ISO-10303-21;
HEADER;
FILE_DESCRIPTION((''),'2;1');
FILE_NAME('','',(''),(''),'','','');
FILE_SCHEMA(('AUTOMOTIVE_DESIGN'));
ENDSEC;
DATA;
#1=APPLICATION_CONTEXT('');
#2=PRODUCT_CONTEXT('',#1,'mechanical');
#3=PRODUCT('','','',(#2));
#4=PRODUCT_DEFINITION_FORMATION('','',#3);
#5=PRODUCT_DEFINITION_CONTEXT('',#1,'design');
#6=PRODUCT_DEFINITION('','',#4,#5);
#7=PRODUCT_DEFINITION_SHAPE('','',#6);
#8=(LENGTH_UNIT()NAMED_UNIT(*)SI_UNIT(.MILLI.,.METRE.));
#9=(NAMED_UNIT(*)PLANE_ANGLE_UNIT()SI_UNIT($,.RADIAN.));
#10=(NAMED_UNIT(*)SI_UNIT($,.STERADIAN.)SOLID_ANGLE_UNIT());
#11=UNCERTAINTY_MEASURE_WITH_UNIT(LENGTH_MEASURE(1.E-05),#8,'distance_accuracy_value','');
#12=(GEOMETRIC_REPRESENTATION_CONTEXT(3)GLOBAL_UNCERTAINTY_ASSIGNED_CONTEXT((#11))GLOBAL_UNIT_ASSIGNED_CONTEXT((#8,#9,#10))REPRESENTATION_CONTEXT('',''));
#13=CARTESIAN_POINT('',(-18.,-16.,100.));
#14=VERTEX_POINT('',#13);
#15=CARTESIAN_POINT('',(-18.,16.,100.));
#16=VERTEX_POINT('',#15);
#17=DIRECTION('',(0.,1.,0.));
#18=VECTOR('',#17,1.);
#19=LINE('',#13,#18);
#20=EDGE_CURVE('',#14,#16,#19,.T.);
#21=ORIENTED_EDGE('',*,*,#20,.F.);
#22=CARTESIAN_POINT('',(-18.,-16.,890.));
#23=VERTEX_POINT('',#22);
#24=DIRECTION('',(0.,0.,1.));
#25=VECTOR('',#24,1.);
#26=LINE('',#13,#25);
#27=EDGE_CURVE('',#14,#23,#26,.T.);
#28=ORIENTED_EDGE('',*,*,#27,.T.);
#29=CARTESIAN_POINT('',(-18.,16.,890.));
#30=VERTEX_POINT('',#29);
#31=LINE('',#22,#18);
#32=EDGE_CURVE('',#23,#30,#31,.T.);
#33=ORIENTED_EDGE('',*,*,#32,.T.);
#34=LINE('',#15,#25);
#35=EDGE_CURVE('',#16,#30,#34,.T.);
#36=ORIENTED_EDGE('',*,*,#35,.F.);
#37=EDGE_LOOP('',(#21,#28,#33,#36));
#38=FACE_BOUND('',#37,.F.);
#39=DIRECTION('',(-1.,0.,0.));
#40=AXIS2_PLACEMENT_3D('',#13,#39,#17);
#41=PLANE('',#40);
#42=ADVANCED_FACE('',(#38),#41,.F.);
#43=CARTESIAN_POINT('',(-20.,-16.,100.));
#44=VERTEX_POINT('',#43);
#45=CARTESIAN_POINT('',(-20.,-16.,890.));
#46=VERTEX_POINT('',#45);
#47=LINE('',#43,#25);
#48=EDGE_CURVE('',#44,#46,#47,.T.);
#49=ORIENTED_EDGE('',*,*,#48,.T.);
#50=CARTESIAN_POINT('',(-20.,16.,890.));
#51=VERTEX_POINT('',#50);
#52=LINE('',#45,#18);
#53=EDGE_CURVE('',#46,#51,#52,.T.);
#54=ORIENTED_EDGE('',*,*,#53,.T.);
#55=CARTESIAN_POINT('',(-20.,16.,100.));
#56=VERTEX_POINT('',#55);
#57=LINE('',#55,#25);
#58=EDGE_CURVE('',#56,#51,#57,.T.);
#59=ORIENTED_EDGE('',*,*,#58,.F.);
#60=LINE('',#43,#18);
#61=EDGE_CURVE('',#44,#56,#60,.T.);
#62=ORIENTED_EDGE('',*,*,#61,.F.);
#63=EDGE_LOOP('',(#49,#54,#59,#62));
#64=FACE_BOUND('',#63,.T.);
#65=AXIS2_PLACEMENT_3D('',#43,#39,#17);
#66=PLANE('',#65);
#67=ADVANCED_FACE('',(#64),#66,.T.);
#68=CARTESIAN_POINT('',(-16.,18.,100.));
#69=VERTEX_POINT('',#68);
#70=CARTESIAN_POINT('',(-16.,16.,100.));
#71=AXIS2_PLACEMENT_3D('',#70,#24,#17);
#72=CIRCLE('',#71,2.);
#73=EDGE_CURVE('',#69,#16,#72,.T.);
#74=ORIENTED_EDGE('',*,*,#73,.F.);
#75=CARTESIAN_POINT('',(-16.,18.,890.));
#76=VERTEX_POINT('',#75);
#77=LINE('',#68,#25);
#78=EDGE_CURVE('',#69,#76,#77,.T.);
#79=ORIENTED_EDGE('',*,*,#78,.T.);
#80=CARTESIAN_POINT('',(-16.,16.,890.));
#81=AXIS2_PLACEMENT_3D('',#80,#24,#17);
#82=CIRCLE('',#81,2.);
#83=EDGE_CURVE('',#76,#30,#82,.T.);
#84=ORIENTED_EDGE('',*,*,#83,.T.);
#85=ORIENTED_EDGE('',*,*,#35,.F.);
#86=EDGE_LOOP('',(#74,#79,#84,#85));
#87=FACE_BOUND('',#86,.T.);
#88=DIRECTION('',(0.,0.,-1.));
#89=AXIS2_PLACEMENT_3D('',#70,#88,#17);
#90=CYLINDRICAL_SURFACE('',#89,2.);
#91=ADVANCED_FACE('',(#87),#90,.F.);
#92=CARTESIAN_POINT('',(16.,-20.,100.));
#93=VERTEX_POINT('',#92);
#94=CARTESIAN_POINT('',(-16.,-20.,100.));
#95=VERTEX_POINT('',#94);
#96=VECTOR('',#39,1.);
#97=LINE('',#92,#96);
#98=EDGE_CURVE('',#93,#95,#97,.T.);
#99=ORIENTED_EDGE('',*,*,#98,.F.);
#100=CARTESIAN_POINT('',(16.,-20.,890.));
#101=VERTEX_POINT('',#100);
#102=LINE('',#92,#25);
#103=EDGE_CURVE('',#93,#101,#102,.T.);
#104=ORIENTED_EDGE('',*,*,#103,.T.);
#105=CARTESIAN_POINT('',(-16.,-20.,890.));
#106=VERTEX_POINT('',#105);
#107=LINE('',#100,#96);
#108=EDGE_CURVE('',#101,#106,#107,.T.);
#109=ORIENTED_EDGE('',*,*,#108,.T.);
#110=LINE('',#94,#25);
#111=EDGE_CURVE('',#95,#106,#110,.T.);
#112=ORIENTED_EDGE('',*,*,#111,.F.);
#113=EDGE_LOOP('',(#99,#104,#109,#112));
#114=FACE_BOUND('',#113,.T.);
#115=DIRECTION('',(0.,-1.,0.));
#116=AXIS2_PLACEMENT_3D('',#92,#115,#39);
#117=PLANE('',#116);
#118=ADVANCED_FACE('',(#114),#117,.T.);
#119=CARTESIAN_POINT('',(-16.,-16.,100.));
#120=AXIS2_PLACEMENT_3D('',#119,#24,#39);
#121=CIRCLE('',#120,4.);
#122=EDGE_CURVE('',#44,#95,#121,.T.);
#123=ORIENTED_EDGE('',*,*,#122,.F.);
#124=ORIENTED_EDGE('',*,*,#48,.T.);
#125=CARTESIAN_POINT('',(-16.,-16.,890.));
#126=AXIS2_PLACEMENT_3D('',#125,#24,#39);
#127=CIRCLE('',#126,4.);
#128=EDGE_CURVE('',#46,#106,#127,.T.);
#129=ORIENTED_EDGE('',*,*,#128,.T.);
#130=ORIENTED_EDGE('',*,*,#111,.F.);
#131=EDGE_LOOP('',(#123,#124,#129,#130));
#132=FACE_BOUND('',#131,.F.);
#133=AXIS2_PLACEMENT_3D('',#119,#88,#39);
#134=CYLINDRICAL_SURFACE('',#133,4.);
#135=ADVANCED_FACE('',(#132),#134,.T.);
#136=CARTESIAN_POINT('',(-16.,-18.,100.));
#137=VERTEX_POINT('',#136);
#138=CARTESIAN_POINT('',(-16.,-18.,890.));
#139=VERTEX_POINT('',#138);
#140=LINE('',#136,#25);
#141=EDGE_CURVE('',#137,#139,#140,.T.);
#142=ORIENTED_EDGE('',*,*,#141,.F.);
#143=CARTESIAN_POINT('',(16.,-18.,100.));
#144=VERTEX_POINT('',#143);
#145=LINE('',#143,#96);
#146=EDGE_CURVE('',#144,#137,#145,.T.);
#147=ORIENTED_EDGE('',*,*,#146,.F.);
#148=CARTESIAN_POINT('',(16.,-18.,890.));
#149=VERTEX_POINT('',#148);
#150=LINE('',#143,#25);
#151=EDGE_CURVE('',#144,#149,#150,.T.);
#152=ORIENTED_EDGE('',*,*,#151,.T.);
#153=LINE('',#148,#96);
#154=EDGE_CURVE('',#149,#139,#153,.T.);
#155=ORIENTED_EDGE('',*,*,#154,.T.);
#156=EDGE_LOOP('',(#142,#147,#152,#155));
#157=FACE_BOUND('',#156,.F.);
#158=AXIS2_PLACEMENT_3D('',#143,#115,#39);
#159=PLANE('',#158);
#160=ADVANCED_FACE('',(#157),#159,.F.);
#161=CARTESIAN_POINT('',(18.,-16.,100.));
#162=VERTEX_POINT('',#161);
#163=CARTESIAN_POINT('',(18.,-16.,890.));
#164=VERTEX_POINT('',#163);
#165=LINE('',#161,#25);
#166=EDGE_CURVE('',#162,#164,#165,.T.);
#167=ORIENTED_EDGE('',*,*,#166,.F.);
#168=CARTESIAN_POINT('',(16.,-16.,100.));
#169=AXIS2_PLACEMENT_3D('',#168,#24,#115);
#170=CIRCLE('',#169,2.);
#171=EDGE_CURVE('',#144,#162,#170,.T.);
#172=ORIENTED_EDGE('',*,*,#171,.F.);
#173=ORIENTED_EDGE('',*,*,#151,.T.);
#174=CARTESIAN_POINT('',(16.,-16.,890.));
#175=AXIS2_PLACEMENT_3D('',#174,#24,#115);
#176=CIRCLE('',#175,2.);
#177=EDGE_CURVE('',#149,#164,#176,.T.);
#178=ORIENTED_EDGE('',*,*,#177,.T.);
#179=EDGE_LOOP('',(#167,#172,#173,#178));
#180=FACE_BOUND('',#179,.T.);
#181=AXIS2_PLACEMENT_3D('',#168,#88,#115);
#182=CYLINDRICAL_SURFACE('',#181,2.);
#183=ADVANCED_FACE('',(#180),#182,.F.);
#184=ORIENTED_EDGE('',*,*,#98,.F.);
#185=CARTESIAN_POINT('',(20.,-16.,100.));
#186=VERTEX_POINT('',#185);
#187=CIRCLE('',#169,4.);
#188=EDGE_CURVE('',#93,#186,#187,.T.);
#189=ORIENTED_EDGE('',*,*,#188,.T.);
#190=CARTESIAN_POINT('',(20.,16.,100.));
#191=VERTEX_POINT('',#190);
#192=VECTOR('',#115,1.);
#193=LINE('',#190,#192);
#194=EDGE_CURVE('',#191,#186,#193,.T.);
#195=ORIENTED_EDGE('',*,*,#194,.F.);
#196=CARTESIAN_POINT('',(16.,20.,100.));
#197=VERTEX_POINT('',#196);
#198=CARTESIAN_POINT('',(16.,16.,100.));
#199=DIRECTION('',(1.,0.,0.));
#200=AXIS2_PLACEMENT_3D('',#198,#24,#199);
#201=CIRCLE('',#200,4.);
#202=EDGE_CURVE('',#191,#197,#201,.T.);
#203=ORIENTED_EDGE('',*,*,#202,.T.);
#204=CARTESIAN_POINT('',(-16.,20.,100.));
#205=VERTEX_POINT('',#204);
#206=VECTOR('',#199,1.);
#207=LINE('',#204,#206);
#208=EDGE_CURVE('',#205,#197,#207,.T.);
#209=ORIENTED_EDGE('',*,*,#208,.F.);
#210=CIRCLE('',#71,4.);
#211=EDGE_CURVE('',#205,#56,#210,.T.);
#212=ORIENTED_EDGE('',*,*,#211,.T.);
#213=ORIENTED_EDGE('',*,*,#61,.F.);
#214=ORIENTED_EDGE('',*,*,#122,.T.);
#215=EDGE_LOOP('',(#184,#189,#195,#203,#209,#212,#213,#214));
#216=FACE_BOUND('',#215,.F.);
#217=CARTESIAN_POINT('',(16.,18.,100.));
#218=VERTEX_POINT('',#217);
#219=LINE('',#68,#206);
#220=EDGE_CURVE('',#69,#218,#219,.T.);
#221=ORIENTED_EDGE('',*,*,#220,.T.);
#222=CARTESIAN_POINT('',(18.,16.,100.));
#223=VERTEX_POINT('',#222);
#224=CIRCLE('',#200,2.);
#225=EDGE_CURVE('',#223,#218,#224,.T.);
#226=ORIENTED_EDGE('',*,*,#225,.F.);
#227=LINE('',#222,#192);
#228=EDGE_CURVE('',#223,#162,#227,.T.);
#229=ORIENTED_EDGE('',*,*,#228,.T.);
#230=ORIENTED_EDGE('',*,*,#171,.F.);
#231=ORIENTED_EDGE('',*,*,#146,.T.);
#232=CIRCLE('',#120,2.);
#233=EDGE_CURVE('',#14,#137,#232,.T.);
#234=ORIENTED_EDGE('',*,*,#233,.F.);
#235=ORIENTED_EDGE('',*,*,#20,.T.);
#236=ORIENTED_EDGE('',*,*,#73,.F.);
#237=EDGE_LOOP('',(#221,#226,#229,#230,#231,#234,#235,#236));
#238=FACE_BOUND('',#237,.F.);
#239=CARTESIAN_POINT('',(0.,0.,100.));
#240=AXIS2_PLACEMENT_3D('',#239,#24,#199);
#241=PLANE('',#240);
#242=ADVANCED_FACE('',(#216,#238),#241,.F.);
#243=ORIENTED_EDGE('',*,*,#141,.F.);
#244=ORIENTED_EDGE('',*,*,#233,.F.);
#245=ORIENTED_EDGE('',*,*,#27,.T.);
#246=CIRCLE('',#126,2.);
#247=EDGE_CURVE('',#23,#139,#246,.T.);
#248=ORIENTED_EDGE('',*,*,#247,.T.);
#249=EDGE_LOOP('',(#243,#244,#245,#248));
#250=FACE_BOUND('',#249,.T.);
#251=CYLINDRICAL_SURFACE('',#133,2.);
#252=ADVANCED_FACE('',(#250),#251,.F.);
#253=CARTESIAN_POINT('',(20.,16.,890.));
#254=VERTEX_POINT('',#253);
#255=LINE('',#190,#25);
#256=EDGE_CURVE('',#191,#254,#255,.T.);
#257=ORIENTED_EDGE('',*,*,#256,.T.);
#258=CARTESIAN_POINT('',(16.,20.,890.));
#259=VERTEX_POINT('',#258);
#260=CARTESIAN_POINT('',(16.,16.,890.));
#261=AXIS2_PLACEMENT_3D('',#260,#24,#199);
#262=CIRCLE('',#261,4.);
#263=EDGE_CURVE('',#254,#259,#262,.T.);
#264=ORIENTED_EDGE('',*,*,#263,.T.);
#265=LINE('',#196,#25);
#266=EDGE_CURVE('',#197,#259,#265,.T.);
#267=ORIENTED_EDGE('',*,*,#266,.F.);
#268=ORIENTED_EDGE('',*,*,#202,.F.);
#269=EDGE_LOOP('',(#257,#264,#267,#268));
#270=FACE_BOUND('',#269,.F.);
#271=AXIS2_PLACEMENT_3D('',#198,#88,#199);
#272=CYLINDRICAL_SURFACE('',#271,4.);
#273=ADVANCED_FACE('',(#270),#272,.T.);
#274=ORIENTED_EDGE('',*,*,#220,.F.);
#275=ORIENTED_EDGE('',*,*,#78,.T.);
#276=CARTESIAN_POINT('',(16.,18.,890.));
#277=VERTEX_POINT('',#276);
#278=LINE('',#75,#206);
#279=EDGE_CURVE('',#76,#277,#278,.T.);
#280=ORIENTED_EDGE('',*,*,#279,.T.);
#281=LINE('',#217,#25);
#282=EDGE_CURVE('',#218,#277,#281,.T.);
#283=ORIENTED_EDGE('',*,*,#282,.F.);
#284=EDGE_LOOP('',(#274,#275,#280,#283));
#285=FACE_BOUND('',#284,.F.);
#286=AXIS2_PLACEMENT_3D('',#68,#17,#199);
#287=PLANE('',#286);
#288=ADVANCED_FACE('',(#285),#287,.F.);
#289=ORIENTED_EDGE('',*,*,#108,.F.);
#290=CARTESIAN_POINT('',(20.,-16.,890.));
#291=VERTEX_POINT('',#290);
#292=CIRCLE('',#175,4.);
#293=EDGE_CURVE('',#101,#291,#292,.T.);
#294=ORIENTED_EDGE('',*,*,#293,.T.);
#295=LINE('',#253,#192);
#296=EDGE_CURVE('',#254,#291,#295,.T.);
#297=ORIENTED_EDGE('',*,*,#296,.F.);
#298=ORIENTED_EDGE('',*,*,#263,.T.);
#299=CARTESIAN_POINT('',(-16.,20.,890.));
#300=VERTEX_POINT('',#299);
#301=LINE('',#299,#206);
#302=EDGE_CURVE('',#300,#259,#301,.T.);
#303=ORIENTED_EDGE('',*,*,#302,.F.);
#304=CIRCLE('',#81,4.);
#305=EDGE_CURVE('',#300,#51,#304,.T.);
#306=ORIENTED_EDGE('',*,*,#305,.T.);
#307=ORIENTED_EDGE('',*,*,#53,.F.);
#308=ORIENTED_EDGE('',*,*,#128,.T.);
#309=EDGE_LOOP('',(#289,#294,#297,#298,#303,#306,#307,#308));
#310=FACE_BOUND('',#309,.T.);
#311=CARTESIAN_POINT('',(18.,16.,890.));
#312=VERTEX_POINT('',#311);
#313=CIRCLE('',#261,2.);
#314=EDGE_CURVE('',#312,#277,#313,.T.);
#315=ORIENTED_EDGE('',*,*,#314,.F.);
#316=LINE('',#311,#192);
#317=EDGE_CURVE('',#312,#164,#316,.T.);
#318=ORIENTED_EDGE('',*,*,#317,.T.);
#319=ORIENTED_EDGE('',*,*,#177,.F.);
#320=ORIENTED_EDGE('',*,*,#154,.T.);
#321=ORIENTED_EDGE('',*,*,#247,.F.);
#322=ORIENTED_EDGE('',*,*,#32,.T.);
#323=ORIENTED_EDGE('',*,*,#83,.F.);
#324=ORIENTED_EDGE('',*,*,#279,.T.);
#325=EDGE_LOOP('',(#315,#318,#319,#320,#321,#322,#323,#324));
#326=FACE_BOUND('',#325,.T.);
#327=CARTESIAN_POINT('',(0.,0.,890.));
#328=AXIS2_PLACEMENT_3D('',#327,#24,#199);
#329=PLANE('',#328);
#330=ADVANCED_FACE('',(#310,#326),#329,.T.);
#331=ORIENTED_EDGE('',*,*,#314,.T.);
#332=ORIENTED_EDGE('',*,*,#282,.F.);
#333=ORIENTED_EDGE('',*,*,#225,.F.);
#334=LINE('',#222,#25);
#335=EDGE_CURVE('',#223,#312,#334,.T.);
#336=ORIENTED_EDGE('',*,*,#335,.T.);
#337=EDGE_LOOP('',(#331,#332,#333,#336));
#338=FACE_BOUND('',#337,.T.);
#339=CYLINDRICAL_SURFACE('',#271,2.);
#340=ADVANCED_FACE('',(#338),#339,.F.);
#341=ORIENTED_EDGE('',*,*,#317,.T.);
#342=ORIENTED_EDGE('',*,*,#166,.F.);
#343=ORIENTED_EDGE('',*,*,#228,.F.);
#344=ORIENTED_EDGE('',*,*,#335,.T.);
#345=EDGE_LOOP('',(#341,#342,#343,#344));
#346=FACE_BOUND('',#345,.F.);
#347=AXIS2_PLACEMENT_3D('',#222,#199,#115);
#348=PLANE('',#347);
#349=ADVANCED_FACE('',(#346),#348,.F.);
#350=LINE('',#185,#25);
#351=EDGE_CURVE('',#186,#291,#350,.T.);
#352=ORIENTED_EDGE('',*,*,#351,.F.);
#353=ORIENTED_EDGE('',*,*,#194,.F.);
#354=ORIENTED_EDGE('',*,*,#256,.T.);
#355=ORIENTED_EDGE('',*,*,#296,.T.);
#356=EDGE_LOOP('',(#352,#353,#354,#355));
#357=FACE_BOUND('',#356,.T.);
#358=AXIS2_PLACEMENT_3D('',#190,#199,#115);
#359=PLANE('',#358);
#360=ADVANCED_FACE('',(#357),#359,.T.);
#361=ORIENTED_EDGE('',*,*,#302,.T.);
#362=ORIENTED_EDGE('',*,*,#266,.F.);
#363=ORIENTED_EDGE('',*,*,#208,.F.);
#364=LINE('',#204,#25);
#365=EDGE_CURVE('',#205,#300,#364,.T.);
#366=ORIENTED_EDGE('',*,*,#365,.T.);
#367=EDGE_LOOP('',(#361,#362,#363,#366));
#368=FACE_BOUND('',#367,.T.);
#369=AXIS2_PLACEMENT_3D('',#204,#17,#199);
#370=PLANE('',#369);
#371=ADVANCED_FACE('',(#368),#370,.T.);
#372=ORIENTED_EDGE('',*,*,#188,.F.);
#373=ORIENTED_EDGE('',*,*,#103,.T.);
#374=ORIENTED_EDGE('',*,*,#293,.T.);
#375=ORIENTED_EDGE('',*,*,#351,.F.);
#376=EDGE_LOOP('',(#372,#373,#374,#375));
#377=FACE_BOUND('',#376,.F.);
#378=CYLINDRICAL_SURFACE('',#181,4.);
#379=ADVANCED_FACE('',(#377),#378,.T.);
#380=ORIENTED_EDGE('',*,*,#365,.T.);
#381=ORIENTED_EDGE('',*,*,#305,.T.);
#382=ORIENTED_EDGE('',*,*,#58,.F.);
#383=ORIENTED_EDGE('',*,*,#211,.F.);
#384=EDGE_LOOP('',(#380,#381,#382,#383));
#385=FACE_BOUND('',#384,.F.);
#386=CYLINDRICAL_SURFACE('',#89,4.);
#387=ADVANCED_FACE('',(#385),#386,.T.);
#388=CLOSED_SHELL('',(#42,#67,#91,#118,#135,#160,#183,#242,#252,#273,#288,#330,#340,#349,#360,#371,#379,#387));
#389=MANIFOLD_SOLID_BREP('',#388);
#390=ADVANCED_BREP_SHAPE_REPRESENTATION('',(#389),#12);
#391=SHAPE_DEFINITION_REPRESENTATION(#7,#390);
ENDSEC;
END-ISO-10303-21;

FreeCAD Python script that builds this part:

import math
import FreeCAD as App
import Part
import Sketcher

V = App.Vector
Q = App.Units.Quantity

doc = App.newDocument("Part")
body = doc.addObject("PartDesign::Body", "Body")

# Sketch on XY plane
sketch1 = body.newObject("Sketcher::SketchObject", "Sketch")
sketch1.AttachmentSupport = (doc.getObject("XY_Plane"), [""])
sketch1.MapMode = "FlatFace"
sketch1.AttachmentOffset = App.Placement(V(0, 0, 100), App.Rotation())
sketch1.addGeometry(Part.LineSegment(V(-20, 16, 0), V(-20, -16, 0)), False)
sketch1.addGeometry(Part.ArcOfCircle(Part.Circle(V(-16, -16, 0), V(0, 0, 1), 4), math.radians(180), math.radians(270)), False)
sketch1.addGeometry(Part.LineSegment(V(-16, -20, 0), V(16, -20, 0)), False)
sketch1.addGeometry(Part.ArcOfCircle(Part.Circle(V(16, -16, 0), V(0, 0, 1), 4), math.radians(-90), math.radians(0)), False)
sketch1.addGeometry(Part.LineSegment(V(20, -16, 0), V(20, 16, 0)), False)
sketch1.addGeometry(Part.ArcOfCircle(Part.Circle(V(16, 16, 0), V(0, 0, 1), 4), math.radians(0), math.radians(90)), False)
sketch1.addGeometry(Part.LineSegment(V(16, 20, 0), V(-16, 20, 0)), False)
sketch1.addGeometry(Part.ArcOfCircle(Part.Circle(V(-16, 16, 0), V(0, 0, 1), 4), math.radians(90), math.radians(180)), False)
sketch1.addGeometry(Part.ArcOfCircle(Part.Circle(V(-16, 16, 0), V(0, 0, 1), 2), math.radians(90), math.radians(180)), False)
sketch1.addGeometry(Part.LineSegment(V(-16, 18, 0), V(16, 18, 0)), False)
sketch1.addGeometry(Part.ArcOfCircle(Part.Circle(V(16, 16, 0), V(0, 0, 1), 2), math.radians(0), math.radians(90)), False)
sketch1.addGeometry(Part.LineSegment(V(18, 16, 0), V(18, -16, 0)), False)
sketch1.addGeometry(Part.ArcOfCircle(Part.Circle(V(16, -16, 0), V(0, 0, 1), 2), math.radians(-90), math.radians(0)), False)
sketch1.addGeometry(Part.LineSegment(V(16, -18, 0), V(-16, -18, 0)), False)
sketch1.addGeometry(Part.ArcOfCircle(Part.Circle(V(-16, -16, 0), V(0, 0, 1), 2), math.radians(180), math.radians(270)), False)
sketch1.addGeometry(Part.LineSegment(V(-18, -16, 0), V(-18, 16, 0)), False)
sketch1.addConstraint(Sketcher.Constraint("Tangent", 0, 2, 1, 1))
sketch1.addConstraint(Sketcher.Constraint("Tangent", 1, 2, 2, 1))
sketch1.addConstraint(Sketcher.Constraint("Tangent", 2, 2, 3, 1))
sketch1.addConstraint(Sketcher.Constraint("Tangent", 3, 2, 4, 1))
sketch1.addConstraint(Sketcher.Constraint("Tangent", 4, 2, 5, 1))
sketch1.addConstraint(Sketcher.Constraint("Tangent", 5, 2, 6, 1))
sketch1.addConstraint(Sketcher.Constraint("Tangent", 6, 2, 7, 1))
sketch1.addConstraint(Sketcher.Constraint("Tangent", 7, 2, 0, 1))
sketch1.addConstraint(Sketcher.Constraint("Tangent", 8, 1, 9, 1))
sketch1.addConstraint(Sketcher.Constraint("Tangent", 9, 2, 10, 2))
sketch1.addConstraint(Sketcher.Constraint("Tangent", 10, 1, 11, 1))
sketch1.addConstraint(Sketcher.Constraint("Tangent", 11, 2, 12, 2))
sketch1.addConstraint(Sketcher.Constraint("Tangent", 12, 1, 13, 1))
sketch1.addConstraint(Sketcher.Constraint("Tangent", 13, 2, 14, 2))
sketch1.addConstraint(Sketcher.Constraint("Tangent", 14, 1, 15, 1))
sketch1.addConstraint(Sketcher.Constraint("Tangent", 15, 2, 8, 2))
sketch1.addConstraint(Sketcher.Constraint("Vertical", 0))
sketch1.addConstraint(Sketcher.Constraint("Horizontal", 2))
sketch1.addConstraint(Sketcher.Constraint("Vertical", 4))
sketch1.addConstraint(Sketcher.Constraint("Horizontal", 6))
sketch1.addConstraint(Sketcher.Constraint("Horizontal", 9))
sketch1.addConstraint(Sketcher.Constraint("Vertical", 11))
sketch1.addConstraint(Sketcher.Constraint("Horizontal", 13))
sketch1.addConstraint(Sketcher.Constraint("Vertical", 15))
sketch1.addConstraint(Sketcher.Constraint("Coincident", 8, 3, 7, 3))
sketch1.addConstraint(Sketcher.Constraint("Coincident", 10, 3, 5, 3))
sketch1.addConstraint(Sketcher.Constraint("Coincident", 12, 3, 3, 3))
sketch1.addConstraint(Sketcher.Constraint("Equal", 1, 3))
sketch1.addConstraint(Sketcher.Constraint("Equal", 3, 5))
sketch1.addConstraint(Sketcher.Constraint("Equal", 5, 7))
sketch1.addConstraint(Sketcher.Constraint("Equal", 12, 14))
sketch1.addConstraint(Sketcher.Constraint("Symmetric", 1, 3, 5, 3, -1, 1))
sketch1.addConstraint(Sketcher.Constraint("Equal", 13, 0))
sketch1.addConstraint(Sketcher.Constraint("Radius", 1, Q("4 mm")))
sketch1.addConstraint(Sketcher.Constraint("Radius", 8, Q("2 mm")))
sketch1.addConstraint(Sketcher.Constraint("DistanceX", 0, 2, -1, 1, Q("20 mm")))
pad1 = body.newObject("PartDesign::Pad", "Pad")
pad1.Profile = sketch1
pad1.Length = 790

doc.recompute()
